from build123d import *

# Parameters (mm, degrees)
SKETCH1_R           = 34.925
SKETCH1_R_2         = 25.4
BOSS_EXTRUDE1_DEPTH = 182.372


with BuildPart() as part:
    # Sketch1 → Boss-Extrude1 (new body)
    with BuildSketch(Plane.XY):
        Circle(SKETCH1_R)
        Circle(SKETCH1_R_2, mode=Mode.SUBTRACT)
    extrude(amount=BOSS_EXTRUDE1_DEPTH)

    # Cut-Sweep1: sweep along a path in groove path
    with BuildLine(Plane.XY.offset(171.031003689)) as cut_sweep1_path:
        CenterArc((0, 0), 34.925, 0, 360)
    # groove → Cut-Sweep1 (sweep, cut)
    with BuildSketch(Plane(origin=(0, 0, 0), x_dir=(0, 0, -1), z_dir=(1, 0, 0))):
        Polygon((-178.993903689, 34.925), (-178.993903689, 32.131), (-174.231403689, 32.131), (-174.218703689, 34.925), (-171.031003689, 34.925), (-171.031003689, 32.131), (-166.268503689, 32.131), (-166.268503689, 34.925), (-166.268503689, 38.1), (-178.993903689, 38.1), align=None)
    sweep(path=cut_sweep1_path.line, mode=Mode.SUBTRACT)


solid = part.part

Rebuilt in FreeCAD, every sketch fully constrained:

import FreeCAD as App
import Part
import Sketcher
from FreeCAD import Vector
Q = App.Units.Quantity

doc = App.newDocument("Part")
body = doc.addObject("PartDesign::Body", "Body")

# Sketch on XY plane
sketch1 = body.newObject("Sketcher::SketchObject", "Sketch")
sketch1.AttachmentSupport = (doc.getObject("XY_Plane"), [""])
sketch1.MapMode = "FlatFace"
sketch1.addGeometry(Part.Circle(Vector(0, 0, 0), Vector(0, 0, 1), 34.925), False)
sketch1.addGeometry(Part.Circle(Vector(0, 0, 0), Vector(0, 0, 1), 25.4), False)
sketch1.addConstraint(Sketcher.Constraint("Coincident", 0, 3, -1, 1))
sketch1.addConstraint(Sketcher.Constraint("Coincident", 1, 3, -1, 1))
sketch1.addConstraint(Sketcher.Constraint("Diameter", 1, Q("2 in")))
sketch1.addConstraint(Sketcher.Constraint("Diameter", 0, Q("2.75 in")))
pad1 = body.newObject("PartDesign::Pad", "Pad")
pad1.Profile = sketch1
pad1.Length = Q("7.18 in")

# Sketch on YZ plane
sketch2 = body.newObject("Sketcher::SketchObject", "Sketch001")
sketch2.AttachmentSupport = (doc.getObject("YZ_Plane"), [""])
sketch2.MapMode = "FlatFace"
sketch2.addGeometry(Part.LineSegment(Vector(32.131, 178.993904, 0), Vector(32.131, 174.231404, 0)), False)
sketch2.addGeometry(Part.LineSegment(Vector(32.131, 174.231404, 0), Vector(34.925, 174.218704, 0)), False)
sketch2.addGeometry(Part.LineSegment(Vector(34.925, 174.218704, 0), Vector(34.925, 171.031004, 0)), False)
sketch2.addGeometry(Part.LineSegment(Vector(34.925, 171.031004, 0), Vector(32.131, 171.031004, 0)), False)
sketch2.addGeometry(Part.LineSegment(Vector(32.131, 171.031004, 0), Vector(32.131, 166.268504, 0)), False)
sketch2.addGeometry(Part.LineSegment(Vector(32.131, 166.268504, 0), Vector(38.1, 166.268504, 0)), False)
sketch2.addGeometry(Part.LineSegment(Vector(38.1, 166.268504, 0), Vector(38.1, 178.993904, 0)), False)
sketch2.addGeometry(Part.LineSegment(Vector(38.1, 178.993904, 0), Vector(32.131, 178.993904, 0)), False)
sketch2.addConstraint(Sketcher.Constraint("Coincident", 0, 2, 1, 1))
sketch2.addConstraint(Sketcher.Constraint("Coincident", 1, 2, 2, 1))
sketch2.addConstraint(Sketcher.Constraint("Coincident", 2, 2, 3, 1))
sketch2.addConstraint(Sketcher.Constraint("Coincident", 3, 2, 4, 1))
sketch2.addConstraint(Sketcher.Constraint("Coincident", 4, 2, 5, 1))
sketch2.addConstraint(Sketcher.Constraint("Coincident", 5, 2, 6, 1))
sketch2.addConstraint(Sketcher.Constraint("Coincident", 6, 2, 7, 1))
sketch2.addConstraint(Sketcher.Constraint("Coincident", 7, 2, 0, 1))
sketch2.addConstraint(Sketcher.Constraint("Vertical", 0))
sketch2.addConstraint(Sketcher.Constraint("Vertical", 2))
sketch2.addConstraint(Sketcher.Constraint("Horizontal", 3))
sketch2.addConstraint(Sketcher.Constraint("Vertical", 4))
sketch2.addConstraint(Sketcher.Constraint("Horizontal", 5))
sketch2.addConstraint(Sketcher.Constraint("Vertical", 6))
sketch2.addConstraint(Sketcher.Constraint("Horizontal", 7))
sketch2.addConstraint(Sketcher.Constraint("Vertical", 0, 2, 3, 2))
sketch2.addConstraint(Sketcher.Constraint("Equal", 0, 4))
sketch2.addConstraint(Sketcher.Constraint("DistanceX", 3, 2, 3, 1, Q("0.11 in")))
sketch2.addConstraint(Sketcher.Constraint("DistanceX", -1, 1, 5, 2, Q("1.5 in")))
sketch2.addConstraint(Sketcher.Constraint("DistanceX", 5, 1, 5, 2, Q("0.235 in")))
sketch2.addConstraint(Sketcher.Constraint("DistanceY", 0, 2, 0, 1, Q("0.1875 in")))
sketch2.addConstraint(Sketcher.Constraint("DistanceY", 6, 1, 6, 2, Q("0.501 in")))
sketch2.addConstraint(Sketcher.Constraint("DistanceY", 2, 2, 2, 1, Q("0.1255 in")))
sketch2.addConstraint(Sketcher.Constraint("DistanceY", -1, 1, 0, 2, 174.231404))

# Sketch on XY plane
sketch3 = body.newObject("Sketcher::SketchObject", "Sketch002")
sketch3.AttachmentSupport = (doc.getObject("XY_Plane"), [""])
sketch3.MapMode = "FlatFace"
sketch3.AttachmentOffset = App.Placement(Vector(0, 0, 171.031004), App.Rotation())
sketch3.addGeometry(Part.Circle(Vector(0, 0, 0), Vector(0, 0, 1), 34.925), False)
sketch3.addConstraint(Sketcher.Constraint("Coincident", 0, 3, -1, 1))
sketch3.addConstraint(Sketcher.Constraint("Diameter", 0, Q("2.75 in")))
doc.recompute()

subtractivepipe = body.newObject("PartDesign::SubtractivePipe", "SubtractivePipe")
subtractivepipe.Profile = sketch2
subtractivepipe.Spine = (sketch3, ["Edge1"])

doc.recompute()
